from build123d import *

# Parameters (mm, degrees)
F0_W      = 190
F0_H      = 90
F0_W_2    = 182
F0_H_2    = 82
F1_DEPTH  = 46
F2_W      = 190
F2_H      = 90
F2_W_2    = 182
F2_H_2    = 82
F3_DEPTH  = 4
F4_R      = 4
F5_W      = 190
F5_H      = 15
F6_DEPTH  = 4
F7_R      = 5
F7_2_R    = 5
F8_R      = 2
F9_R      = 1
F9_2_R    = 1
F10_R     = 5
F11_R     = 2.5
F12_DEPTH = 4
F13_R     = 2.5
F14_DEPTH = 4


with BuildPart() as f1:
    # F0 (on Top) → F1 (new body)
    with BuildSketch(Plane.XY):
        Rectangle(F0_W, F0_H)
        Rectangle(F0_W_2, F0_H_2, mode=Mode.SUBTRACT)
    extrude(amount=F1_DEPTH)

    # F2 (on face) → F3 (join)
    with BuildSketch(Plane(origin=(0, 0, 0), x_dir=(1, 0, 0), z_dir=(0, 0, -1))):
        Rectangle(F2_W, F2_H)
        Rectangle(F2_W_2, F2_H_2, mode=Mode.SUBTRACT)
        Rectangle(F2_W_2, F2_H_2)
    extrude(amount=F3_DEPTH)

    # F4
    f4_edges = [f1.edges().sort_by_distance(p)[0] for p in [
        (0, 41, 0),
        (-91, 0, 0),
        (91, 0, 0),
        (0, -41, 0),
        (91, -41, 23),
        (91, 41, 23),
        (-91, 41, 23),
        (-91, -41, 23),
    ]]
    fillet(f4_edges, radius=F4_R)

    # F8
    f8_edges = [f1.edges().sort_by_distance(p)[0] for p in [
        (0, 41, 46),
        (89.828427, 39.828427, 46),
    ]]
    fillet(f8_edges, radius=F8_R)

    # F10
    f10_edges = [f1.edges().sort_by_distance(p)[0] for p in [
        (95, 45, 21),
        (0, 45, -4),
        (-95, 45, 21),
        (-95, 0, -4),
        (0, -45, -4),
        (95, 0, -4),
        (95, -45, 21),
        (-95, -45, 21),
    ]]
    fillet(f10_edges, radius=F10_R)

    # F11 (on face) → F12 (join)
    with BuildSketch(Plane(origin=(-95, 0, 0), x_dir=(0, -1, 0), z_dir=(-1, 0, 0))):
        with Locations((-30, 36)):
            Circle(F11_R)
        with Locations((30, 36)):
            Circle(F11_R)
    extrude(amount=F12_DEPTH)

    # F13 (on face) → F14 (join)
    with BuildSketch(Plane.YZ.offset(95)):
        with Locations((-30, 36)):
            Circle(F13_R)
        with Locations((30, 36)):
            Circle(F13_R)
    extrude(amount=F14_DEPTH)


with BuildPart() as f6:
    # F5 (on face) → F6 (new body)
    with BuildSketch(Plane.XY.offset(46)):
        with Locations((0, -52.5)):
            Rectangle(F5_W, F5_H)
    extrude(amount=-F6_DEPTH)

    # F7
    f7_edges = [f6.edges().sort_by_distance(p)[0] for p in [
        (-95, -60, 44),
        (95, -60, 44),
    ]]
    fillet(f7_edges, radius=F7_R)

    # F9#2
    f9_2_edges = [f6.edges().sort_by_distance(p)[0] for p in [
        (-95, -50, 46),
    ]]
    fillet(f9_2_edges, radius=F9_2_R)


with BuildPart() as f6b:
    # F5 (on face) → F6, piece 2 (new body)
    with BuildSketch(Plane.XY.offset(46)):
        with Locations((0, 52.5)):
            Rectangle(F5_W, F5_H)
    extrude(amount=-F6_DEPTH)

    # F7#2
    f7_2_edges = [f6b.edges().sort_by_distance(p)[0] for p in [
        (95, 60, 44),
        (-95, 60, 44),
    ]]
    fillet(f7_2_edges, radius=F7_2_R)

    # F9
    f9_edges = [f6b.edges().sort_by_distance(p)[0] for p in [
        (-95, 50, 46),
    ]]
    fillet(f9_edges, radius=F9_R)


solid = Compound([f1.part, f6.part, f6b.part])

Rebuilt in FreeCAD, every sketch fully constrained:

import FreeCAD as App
import Part
import Sketcher
from FreeCAD import Vector


def edges_at(feature, points):
    """Names of the edges that pass closest to the given points."""
    edges = feature.Shape.Edges
    near = lambda p: min(range(len(edges)), key=lambda i: edges[i].distToShape(Part.Vertex(*p))[0])
    return sorted({f"Edge{near(p) + 1}" for p in points})

doc = App.newDocument("Part")
body = doc.addObject("PartDesign::Body", "Body")

sketch1 = doc.addObject("Sketcher::SketchObject", "Sketch")
body.addObject(sketch1)
sketch1.AttachmentSupport = (doc.XY_Plane, [""])
sketch1.MapMode = "FlatFace"
sketch1.addGeometry([
    Part.LineSegment(Vector(-95, 45, 0), Vector(-95, -45, 0)),
    Part.LineSegment(Vector(-95, -45, 0), Vector(95, -45, 0)),
    Part.LineSegment(Vector(95, -45, 0), Vector(95, 45, 0)),
    Part.LineSegment(Vector(95, 45, 0), Vector(-95, 45, 0)),
    Part.LineSegment(Vector(91, -41, 0), Vector(-91, -41, 0)),
    Part.LineSegment(Vector(-91, -41, 0), Vector(-91, 41, 0)),
    Part.LineSegment(Vector(-91, 41, 0), Vector(91, 41, 0)),
    Part.LineSegment(Vector(91, 41, 0), Vector(91, -41, 0)),
], False)
sketch1.addConstraint([
    Sketcher.Constraint("Coincident", 0, 2, 1, 1),
    Sketcher.Constraint("Coincident", 1, 2, 2, 1),
    Sketcher.Constraint("Coincident", 2, 2, 3, 1),
    Sketcher.Constraint("Coincident", 3, 2, 0, 1),
    Sketcher.Constraint("Coincident", 4, 2, 5, 1),
    Sketcher.Constraint("Coincident", 5, 2, 6, 1),
    Sketcher.Constraint("Coincident", 6, 2, 7, 1),
    Sketcher.Constraint("Coincident", 7, 2, 4, 1),
    Sketcher.Constraint("Vertical", 0),
    Sketcher.Constraint("Horizontal", 1),
    Sketcher.Constraint("Vertical", 2),
    Sketcher.Constraint("Horizontal", 3),
    Sketcher.Constraint("Horizontal", 4),
    Sketcher.Constraint("Vertical", 5),
    Sketcher.Constraint("Horizontal", 6),
    Sketcher.Constraint("Vertical", 7),
    Sketcher.Constraint("Symmetric", 0, 2, 2, 2, -1, 1),
    Sketcher.Constraint("Symmetric", 4, 2, 6, 2, -1, 1),
    Sketcher.Constraint("DistanceX", 1, 1, 1, 2, 190.0),
    Sketcher.Constraint("DistanceX", 4, 2, 4, 1, 182.0),
    Sketcher.Constraint("DistanceY", 0, 2, 0, 1, 90.0),
    Sketcher.Constraint("DistanceY", 5, 1, 5, 2, 82.0),
])
pad1 = doc.addObject("PartDesign::Pad", "Pad")
body.addObject(pad1)
pad1.Profile = sketch1
pad1.Length = 46

sketch2 = doc.addObject("Sketcher::SketchObject", "Sketch001")
body.addObject(sketch2)
sketch2.AttachmentSupport = (doc.XY_Plane, [""])
sketch2.MapMode = "FlatFace"
sketch2.addGeometry([
    Part.LineSegment(Vector(-95, -45, 0), Vector(-95, 45, 0)),
    Part.LineSegment(Vector(-95, 45, 0), Vector(95, 45, 0)),
    Part.LineSegment(Vector(95, 45, 0), Vector(95, -45, 0)),
    Part.LineSegment(Vector(95, -45, 0), Vector(-95, -45, 0)),
], False)
sketch2.addConstraint([
    Sketcher.Constraint("Coincident", 0, 2, 1, 1),
    Sketcher.Constraint("Coincident", 1, 2, 2, 1),
    Sketcher.Constraint("Coincident", 2, 2, 3, 1),
    Sketcher.Constraint("Coincident", 3, 2, 0, 1),
    Sketcher.Constraint("Vertical", 0),
    Sketcher.Constraint("Horizontal", 1),
    Sketcher.Constraint("Vertical", 2),
    Sketcher.Constraint("Horizontal", 3),
    Sketcher.Constraint("Symmetric", 0, 2, 2, 2, -1, 1),
    Sketcher.Constraint("DistanceX", 1, 1, 1, 2, 190.0),
    Sketcher.Constraint("DistanceY", 0, 1, 0, 2, 90.0),
])
pad2 = doc.addObject("PartDesign::Pad", "Pad001")
body.addObject(pad2)
pad2.Profile = sketch2
pad2.Length = 4
pad2.Reversed = True
doc.recompute()

fillet = doc.addObject("PartDesign::Fillet", "Fillet")
body.addObject(fillet)
fillet.Base = (pad2, edges_at(pad2, [
    (0, 41, 0),
    (-91, 0, 0),
    (91, 0, 0),
    (0, -41, 0),
    (91, -41, 23),
    (91, 41, 23),
    (-91, 41, 23),
    (-91, -41, 23),
]))
fillet.Radius = 4
doc.recompute()

fillet2 = doc.addObject("PartDesign::Fillet", "Fillet001")
body.addObject(fillet2)
fillet2.Base = (fillet, edges_at(fillet, [(0, 41, 46), (89.828, 39.828, 46)]))
fillet2.Radius = 2
doc.recompute()

fillet3 = doc.addObject("PartDesign::Fillet", "Fillet002")
body.addObject(fillet3)
fillet3.Base = (fillet2, edges_at(fillet2, [
    (95, 45, 21),
    (0, 45, -4),
    (-95, 45, 21),
    (-95, 0, -4),
    (0, -45, -4),
    (95, 0, -4),
    (95, -45, 21),
    (-95, -45, 21),
]))
fillet3.Radius = 5

sketch3 = doc.addObject("Sketcher::SketchObject", "Sketch002")
body.addObject(sketch3)
sketch3.AttachmentSupport = (doc.YZ_Plane, [""])
sketch3.MapMode = "FlatFace"
sketch3.AttachmentOffset = App.Placement(Vector(0, 0, -95), App.Rotation())
sketch3.addGeometry([
    Part.Circle(Vector(30, 36, 0), Vector(0, 0, 1), 2.5),
    Part.Circle(Vector(-30, 36, 0), Vector(0, 0, 1), 2.5),
], False)
sketch3.addConstraint([
    Sketcher.Constraint("Equal", 0, 1),
    Sketcher.Constraint("Symmetric", 0, 3, 1, 3, -2),
    Sketcher.Constraint("Diameter", 0, 5.0),
    Sketcher.Constraint("DistanceX", -1, 1, 0, 3, 30.0),
    Sketcher.Constraint("DistanceY", -1, 1, 0, 3, 36.0),
])
pad3 = doc.addObject("PartDesign::Pad", "Pad002")
body.addObject(pad3)
pad3.Profile = sketch3
pad3.Length = 4
pad3.Reversed = True

sketch4 = doc.addObject("Sketcher::SketchObject", "Sketch003")
body.addObject(sketch4)
sketch4.AttachmentSupport = (doc.YZ_Plane, [""])
sketch4.MapMode = "FlatFace"
sketch4.AttachmentOffset = App.Placement(Vector(0, 0, 95), App.Rotation())
sketch4.addGeometry([
    Part.Circle(Vector(-30, 36, 0), Vector(0, 0, 1), 2.5),
    Part.Circle(Vector(30, 36, 0), Vector(0, 0, 1), 2.5),
], False)
sketch4.addConstraint([
    Sketcher.Constraint("Equal", 0, 1),
    Sketcher.Constraint("Symmetric", 0, 3, 1, 3, -2),
    Sketcher.Constraint("Diameter", 0, 5.0),
    Sketcher.Constraint("DistanceX", 0, 3, -1, 1, 30.0),
    Sketcher.Constraint("DistanceY", -1, 1, 0, 3, 36.0),
])
pad4 = doc.addObject("PartDesign::Pad", "Pad003")
body.addObject(pad4)
pad4.Profile = sketch4
pad4.Length = 4
body2 = doc.addObject("PartDesign::Body", "Body001")

sketch5 = doc.addObject("Sketcher::SketchObject", "Sketch004")
body2.addObject(sketch5)
sketch5.AttachmentSupport = (doc.getObject("XY_Plane001"), [""])
sketch5.MapMode = "FlatFace"
sketch5.AttachmentOffset = App.Placement(Vector(0, 0, 46), App.Rotation())
sketch5.addGeometry([
    Part.LineSegment(Vector(-95, -45, 0), Vector(-95, -60, 0)),
    Part.LineSegment(Vector(-95, -60, 0), Vector(95, -60, 0)),
    Part.LineSegment(Vector(95, -60, 0), Vector(95, -45, 0)),
    Part.LineSegment(Vector(95, -45, 0), Vector(-95, -45, 0)),
], False)
sketch5.addConstraint([
    Sketcher.Constraint("Coincident", 0, 2, 1, 1),
    Sketcher.Constraint("Coincident", 1, 2, 2, 1),
    Sketcher.Constraint("Coincident", 2, 2, 3, 1),
    Sketcher.Constraint("Coincident", 3, 2, 0, 1),
    Sketcher.Constraint("Vertical", 0),
    Sketcher.Constraint("Horizontal", 1),
    Sketcher.Constraint("Vertical", 2),
    Sketcher.Constraint("Horizontal", 3),
    Sketcher.Constraint("DistanceX", 1, 1, 1, 2, 190.0),
    Sketcher.Constraint("DistanceY", 0, 2, 0, 1, 15.0),
    Sketcher.Constraint("DistanceX", 0, 2, -1, 1, 95.0),
    Sketcher.Constraint("DistanceY", 0, 2, -1, 1, 60.0),
])
pad5 = doc.addObject("PartDesign::Pad", "Pad004")
body2.addObject(pad5)
pad5.Profile = sketch5
pad5.Length = 4
pad5.Reversed = True
doc.recompute()

fillet4 = doc.addObject("PartDesign::Fillet", "Fillet003")
body2.addObject(fillet4)
fillet4.Base = (pad5, edges_at(pad5, [(-95, -60, 44), (95, -60, 44)]))
fillet4.Radius = 5
doc.recompute()

fillet5 = doc.addObject("PartDesign::Fillet", "Fillet004")
body2.addObject(fillet5)
fillet5.Base = (fillet4, edges_at(fillet4, [(-95, -50, 46)]))
fillet5.Radius = 1
body3 = doc.addObject("PartDesign::Body", "Body002")

sketch6 = doc.addObject("Sketcher::SketchObject", "Sketch005")
body3.addObject(sketch6)
sketch6.AttachmentSupport = (doc.getObject("XY_Plane002"), [""])
sketch6.MapMode = "FlatFace"
sketch6.AttachmentOffset = App.Placement(Vector(0, 0, 46), App.Rotation())
sketch6.addGeometry([
    Part.LineSegment(Vector(-95, 60, 0), Vector(-95, 45, 0)),
    Part.LineSegment(Vector(-95, 45, 0), Vector(95, 45, 0)),
    Part.LineSegment(Vector(95, 45, 0), Vector(95, 60, 0)),
    Part.LineSegment(Vector(95, 60, 0), Vector(-95, 60, 0)),
], False)
sketch6.addConstraint([
    Sketcher.Constraint("Coincident", 0, 2, 1, 1),
    Sketcher.Constraint("Coincident", 1, 2, 2, 1),
    Sketcher.Constraint("Coincident", 2, 2, 3, 1),
    Sketcher.Constraint("Coincident", 3, 2, 0, 1),
    Sketcher.Constraint("Vertical", 0),
    Sketcher.Constraint("Horizontal", 1),
    Sketcher.Constraint("Vertical", 2),
    Sketcher.Constraint("Horizontal", 3),
    Sketcher.Constraint("DistanceX", 1, 1, 1, 2, 190.0),
    Sketcher.Constraint("DistanceY", 0, 2, 0, 1, 15.0),
    Sketcher.Constraint("DistanceX", 0, 2, -1, 1, 95.0),
    Sketcher.Constraint("DistanceY", -1, 1, 0, 2, 45.0),
])
pad6 = doc.addObject("PartDesign::Pad", "Pad005")
body3.addObject(pad6)
pad6.Profile = sketch6
pad6.Length = 4
pad6.Reversed = True
doc.recompute()

fillet6 = doc.addObject("PartDesign::Fillet", "Fillet005")
body3.addObject(fillet6)
fillet6.Base = (pad6, edges_at(pad6, [(95, 60, 44), (-95, 60, 44)]))
fillet6.Radius = 5
doc.recompute()

fillet7 = doc.addObject("PartDesign::Fillet", "Fillet006")
body3.addObject(fillet7)
fillet7.Base = (fillet6, edges_at(fillet6, [(-95, 50, 46)]))
fillet7.Radius = 1

doc.recompute()
